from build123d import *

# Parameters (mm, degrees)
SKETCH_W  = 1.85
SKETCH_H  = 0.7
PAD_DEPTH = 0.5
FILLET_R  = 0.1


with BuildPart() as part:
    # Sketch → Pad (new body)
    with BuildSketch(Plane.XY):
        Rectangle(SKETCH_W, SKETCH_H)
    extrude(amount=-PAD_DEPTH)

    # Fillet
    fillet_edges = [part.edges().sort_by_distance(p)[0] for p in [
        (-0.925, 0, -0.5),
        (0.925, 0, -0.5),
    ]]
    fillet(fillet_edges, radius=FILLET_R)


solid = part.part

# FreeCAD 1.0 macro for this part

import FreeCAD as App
import Part
import Sketcher
from FreeCAD import Vector
Q = App.Units.Quantity


def edges_at(feature, points):
    """Names of the edges that pass closest to the given points."""
    edges = feature.Shape.Edges
    near = lambda p: min(range(len(edges)), key=lambda i: edges[i].distToShape(Part.Vertex(*p))[0])
    return sorted({f"Edge{near(p) + 1}" for p in points})


def add_polygon(sketch, points):
    """Adds a closed chain of lines whose ends are joined by coincident constraints."""
    first, n = sketch.GeometryCount, len(points)
    for a, b in zip(points, points[1:] + points[:1]):
        sketch.addGeometry(Part.LineSegment(App.Vector(*a, 0), App.Vector(*b, 0)), False)
    for i in range(n):
        sketch.addConstraint(Sketcher.Constraint("Coincident", first + i, 2, first + (i + 1) % n, 1))

doc = App.newDocument("Part")
body = doc.addObject("PartDesign::Body", "Body")

# Sketch on XY plane
sketch1 = body.newObject("Sketcher::SketchObject", "Sketch")
sketch1.AttachmentSupport = (doc.getObject("XY_Plane"), [""])
sketch1.MapMode = "FlatFace"
add_polygon(sketch1, [(-0.9, 0.3), (-0.9, -0.3), (0.9, -0.3), (0.9, 0.3)])  # lines 0-3
sketch1.addConstraint([
    Sketcher.Constraint("Vertical", 0),
    Sketcher.Constraint("Horizontal", 1),
    Sketcher.Constraint("Vertical", 2),
    Sketcher.Constraint("Horizontal", 3),
    Sketcher.Constraint("Symmetric", 0, 2, 2, 2, -1, 1),
    Sketcher.Constraint("DistanceY", 0, 2, 0, 1, Q("0.7 mm")),
    Sketcher.Constraint("DistanceX", 1, 1, 1, 2, Q("1.85 mm")),
])
pad1 = body.newObject("PartDesign::Pad", "Pad")
pad1.Profile = sketch1
pad1.Length = 0.5
pad1.Reversed = True
doc.recompute()

fillet = body.newObject("PartDesign::Fillet", "Fillet")
fillet.Base = (pad1, edges_at(pad1, [(-0.925, 0, -0.5), (0.925, 0, -0.5)]))
fillet.Radius = 0.1

doc.recompute()
